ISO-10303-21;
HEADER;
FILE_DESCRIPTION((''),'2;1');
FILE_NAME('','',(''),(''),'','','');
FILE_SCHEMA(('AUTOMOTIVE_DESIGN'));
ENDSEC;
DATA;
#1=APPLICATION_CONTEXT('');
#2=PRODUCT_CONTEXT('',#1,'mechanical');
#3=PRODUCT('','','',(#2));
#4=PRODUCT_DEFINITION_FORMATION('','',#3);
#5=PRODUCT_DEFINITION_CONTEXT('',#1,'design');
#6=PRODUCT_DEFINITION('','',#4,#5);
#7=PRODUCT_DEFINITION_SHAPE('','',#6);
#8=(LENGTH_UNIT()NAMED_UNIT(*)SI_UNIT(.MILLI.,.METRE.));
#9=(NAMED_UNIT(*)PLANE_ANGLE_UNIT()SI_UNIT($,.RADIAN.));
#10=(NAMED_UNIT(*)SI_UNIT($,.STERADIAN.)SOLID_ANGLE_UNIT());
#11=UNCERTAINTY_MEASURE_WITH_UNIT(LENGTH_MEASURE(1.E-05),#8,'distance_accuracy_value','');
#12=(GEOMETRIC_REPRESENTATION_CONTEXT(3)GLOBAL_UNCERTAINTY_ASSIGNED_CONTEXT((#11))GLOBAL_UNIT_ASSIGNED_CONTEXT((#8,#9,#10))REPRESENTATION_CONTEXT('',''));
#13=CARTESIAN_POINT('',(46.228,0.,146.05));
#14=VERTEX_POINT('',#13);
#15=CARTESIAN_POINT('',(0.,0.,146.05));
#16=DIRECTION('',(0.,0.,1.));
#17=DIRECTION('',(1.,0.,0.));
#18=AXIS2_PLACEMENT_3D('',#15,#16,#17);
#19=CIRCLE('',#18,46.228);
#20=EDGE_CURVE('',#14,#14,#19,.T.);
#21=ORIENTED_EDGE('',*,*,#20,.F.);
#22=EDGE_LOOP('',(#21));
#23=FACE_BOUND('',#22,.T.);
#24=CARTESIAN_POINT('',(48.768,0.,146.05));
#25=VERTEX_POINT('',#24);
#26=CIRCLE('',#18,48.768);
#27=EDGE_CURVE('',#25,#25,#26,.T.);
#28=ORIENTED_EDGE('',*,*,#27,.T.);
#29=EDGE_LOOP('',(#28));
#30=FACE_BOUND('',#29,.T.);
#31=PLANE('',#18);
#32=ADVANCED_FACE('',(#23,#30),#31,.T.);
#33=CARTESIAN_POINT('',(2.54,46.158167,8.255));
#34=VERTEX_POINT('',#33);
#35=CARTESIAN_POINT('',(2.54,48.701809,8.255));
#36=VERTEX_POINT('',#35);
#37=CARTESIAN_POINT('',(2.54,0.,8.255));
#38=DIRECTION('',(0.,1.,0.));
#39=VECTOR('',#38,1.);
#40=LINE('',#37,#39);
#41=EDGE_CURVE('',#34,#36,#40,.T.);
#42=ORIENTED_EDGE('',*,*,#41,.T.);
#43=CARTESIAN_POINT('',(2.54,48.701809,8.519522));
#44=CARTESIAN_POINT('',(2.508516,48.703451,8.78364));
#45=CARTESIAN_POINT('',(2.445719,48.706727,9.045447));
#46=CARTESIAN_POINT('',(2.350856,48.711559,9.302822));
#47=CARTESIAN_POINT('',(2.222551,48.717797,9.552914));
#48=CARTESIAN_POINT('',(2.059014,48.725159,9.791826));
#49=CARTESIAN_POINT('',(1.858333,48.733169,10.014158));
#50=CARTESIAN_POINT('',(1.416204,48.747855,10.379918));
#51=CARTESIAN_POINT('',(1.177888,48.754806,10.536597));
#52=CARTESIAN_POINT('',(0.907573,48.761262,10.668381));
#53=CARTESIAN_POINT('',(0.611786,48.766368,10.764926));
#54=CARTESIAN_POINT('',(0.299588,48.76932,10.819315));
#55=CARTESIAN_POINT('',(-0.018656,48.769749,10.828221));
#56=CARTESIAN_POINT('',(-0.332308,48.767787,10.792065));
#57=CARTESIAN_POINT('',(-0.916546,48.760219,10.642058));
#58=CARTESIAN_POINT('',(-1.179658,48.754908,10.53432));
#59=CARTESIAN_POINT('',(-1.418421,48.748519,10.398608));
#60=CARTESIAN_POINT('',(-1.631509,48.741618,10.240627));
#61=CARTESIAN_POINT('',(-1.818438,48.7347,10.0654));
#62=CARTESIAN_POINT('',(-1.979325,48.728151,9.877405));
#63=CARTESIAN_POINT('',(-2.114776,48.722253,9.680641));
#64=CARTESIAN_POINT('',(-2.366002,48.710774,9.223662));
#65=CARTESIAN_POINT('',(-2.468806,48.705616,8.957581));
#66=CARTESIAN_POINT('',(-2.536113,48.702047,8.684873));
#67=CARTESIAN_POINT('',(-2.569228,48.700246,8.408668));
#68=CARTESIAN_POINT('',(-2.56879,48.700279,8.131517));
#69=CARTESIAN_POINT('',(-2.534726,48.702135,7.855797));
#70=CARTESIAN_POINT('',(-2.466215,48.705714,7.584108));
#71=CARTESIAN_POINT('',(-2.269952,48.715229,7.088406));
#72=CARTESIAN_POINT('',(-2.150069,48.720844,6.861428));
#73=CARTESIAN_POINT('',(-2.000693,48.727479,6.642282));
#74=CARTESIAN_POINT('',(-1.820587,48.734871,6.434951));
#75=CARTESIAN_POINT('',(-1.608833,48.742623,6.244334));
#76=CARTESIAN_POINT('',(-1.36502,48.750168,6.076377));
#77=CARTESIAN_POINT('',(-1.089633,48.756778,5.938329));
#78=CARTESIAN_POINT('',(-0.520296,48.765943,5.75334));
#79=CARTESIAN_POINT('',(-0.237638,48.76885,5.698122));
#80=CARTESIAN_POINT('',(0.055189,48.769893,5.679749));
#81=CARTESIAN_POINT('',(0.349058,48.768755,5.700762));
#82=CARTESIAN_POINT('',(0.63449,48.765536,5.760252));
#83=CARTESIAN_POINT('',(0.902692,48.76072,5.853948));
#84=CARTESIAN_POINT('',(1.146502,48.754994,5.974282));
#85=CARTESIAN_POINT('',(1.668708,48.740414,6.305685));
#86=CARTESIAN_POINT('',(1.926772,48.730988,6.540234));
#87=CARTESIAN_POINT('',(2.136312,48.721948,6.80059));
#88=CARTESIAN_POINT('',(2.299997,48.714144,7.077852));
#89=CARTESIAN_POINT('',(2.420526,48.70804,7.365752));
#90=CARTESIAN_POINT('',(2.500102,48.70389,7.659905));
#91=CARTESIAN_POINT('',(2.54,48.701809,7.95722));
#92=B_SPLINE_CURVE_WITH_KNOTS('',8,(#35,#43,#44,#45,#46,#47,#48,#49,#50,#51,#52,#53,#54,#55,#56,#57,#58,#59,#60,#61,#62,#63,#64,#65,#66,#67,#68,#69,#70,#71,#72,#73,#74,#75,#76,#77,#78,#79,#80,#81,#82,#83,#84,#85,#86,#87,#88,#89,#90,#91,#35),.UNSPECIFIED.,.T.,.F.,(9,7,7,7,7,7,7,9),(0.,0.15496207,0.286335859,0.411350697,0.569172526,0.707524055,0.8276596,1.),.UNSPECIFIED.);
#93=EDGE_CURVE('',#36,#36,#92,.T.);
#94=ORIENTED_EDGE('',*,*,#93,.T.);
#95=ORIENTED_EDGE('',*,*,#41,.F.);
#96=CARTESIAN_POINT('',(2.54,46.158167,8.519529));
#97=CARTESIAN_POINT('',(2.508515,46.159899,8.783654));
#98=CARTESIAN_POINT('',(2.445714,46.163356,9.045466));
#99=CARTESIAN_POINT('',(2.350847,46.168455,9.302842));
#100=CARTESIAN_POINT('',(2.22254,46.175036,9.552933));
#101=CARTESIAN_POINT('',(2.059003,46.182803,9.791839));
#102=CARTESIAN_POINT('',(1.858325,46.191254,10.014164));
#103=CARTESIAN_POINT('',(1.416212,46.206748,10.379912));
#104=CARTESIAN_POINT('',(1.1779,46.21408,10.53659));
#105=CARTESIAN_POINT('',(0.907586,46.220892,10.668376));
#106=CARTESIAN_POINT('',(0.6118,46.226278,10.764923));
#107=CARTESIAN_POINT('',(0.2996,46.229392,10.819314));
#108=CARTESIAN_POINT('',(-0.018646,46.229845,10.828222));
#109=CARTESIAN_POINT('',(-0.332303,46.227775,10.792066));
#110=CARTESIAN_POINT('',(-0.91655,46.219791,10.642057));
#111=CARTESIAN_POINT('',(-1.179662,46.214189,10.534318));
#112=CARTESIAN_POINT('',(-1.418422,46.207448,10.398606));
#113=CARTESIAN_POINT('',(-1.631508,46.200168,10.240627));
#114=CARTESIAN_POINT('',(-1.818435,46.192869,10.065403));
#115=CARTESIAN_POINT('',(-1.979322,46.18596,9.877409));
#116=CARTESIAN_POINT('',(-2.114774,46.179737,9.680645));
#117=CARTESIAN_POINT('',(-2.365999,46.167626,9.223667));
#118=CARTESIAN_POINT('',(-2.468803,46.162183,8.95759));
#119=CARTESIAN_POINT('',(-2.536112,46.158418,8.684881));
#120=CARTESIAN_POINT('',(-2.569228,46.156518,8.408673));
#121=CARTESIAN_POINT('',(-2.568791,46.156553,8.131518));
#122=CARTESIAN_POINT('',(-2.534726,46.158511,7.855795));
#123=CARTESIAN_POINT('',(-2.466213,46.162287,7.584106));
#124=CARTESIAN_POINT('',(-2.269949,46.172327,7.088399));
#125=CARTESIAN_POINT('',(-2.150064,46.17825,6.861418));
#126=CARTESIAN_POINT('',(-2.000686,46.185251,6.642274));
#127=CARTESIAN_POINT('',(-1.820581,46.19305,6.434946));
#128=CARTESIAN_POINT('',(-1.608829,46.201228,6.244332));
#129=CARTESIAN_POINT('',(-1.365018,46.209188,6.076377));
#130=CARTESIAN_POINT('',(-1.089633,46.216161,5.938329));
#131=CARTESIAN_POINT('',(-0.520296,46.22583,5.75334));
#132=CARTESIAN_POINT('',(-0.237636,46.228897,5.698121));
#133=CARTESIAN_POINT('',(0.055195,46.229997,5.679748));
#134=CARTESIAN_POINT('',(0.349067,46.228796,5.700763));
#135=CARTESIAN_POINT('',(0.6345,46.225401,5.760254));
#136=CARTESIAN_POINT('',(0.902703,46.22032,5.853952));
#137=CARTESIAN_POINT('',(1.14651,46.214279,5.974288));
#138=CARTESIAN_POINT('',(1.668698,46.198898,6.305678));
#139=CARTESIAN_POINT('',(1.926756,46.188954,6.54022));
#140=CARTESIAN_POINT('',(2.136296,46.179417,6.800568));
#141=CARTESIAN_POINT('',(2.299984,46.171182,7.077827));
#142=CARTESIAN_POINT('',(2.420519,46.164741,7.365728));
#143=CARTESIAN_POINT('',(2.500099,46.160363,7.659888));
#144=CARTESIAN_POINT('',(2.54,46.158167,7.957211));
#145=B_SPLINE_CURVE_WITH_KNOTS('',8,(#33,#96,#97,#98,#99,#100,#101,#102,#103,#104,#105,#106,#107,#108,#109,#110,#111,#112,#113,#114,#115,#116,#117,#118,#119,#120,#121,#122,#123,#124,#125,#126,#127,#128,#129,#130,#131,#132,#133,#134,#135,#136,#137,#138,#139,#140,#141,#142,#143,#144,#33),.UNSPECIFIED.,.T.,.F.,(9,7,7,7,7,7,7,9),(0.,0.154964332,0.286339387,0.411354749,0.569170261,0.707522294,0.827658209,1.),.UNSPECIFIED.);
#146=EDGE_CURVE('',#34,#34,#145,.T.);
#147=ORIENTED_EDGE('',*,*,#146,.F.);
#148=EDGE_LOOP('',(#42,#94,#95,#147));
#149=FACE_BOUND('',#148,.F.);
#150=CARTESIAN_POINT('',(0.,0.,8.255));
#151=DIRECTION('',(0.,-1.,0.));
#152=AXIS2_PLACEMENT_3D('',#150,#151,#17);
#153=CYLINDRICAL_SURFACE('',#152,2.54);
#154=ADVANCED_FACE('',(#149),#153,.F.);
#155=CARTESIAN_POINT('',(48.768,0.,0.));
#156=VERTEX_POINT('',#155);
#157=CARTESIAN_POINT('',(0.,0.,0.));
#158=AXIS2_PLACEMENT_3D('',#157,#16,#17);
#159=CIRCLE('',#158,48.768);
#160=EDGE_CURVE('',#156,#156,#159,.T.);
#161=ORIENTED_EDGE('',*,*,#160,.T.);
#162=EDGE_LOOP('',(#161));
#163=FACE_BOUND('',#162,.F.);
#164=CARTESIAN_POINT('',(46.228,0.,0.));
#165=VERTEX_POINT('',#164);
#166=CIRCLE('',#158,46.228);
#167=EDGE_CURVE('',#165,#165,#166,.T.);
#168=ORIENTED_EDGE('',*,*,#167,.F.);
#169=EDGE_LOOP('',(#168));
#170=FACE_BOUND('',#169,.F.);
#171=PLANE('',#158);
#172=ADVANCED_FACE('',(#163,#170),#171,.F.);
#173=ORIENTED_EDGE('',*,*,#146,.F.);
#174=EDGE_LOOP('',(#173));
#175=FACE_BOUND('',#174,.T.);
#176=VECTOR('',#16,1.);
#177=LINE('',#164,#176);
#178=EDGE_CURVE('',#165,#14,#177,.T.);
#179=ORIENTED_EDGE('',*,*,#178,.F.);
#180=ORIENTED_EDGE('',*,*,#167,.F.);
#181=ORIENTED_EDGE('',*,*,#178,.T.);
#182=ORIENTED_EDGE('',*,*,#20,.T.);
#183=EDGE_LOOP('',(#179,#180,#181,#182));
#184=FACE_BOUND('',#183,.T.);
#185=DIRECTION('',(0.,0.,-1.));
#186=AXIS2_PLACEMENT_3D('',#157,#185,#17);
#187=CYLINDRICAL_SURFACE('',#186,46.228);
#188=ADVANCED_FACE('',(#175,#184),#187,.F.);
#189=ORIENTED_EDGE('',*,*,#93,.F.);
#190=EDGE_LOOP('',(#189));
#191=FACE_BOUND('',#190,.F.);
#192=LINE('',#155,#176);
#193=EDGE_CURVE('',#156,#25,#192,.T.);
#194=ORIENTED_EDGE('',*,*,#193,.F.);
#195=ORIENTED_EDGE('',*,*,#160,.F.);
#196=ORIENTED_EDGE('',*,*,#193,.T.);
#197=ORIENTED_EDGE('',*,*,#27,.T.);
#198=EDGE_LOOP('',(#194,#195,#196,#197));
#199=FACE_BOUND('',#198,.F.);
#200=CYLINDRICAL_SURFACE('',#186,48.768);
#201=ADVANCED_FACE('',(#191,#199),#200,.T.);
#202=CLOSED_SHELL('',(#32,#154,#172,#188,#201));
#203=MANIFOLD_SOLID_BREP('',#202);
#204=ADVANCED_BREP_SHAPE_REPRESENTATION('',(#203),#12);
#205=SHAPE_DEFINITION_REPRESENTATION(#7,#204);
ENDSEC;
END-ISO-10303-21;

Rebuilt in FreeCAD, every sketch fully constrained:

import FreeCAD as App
import Part
import Sketcher
from FreeCAD import Vector
Q = App.Units.Quantity

doc = App.newDocument("Part")
body = doc.addObject("PartDesign::Body", "Body")

# Sketch on XY plane
sketch1 = body.newObject("Sketcher::SketchObject", "Sketch")
sketch1.AttachmentSupport = (doc.getObject("XY_Plane"), [""])
sketch1.MapMode = "FlatFace"
sketch1.addGeometry([
    Part.Circle(Vector(0, 0, 0), Vector(0, 0, 1), 49),
    Part.Circle(Vector(0, 0, 0), Vector(0, 0, 1), 46),
], False)
sketch1.addConstraint([
    Sketcher.Constraint("Coincident", 0, 3, -1, 1),
    Sketcher.Constraint("Coincident", 1, 3, -1, 1),
    Sketcher.Constraint("Diameter", 0, Q("3.84 in")),
    Sketcher.Constraint("Diameter", 1, Q("3.64 in")),
])
pad1 = body.newObject("PartDesign::Pad", "Pad")
pad1.Profile = sketch1
pad1.Length = Q("5.75 in")

# Sketch on XZ plane
sketch2 = body.newObject("Sketcher::SketchObject", "Sketch001")
sketch2.AttachmentSupport = (doc.getObject("XZ_Plane"), [""])
sketch2.MapMode = "FlatFace"
sketch2.addGeometry(Part.Circle(Vector(0, 8.3, 0), Vector(0, 0, 1), 2.5), False)
sketch2.addConstraint([
    Sketcher.Constraint("PointOnObject", 0, 3, -2),
    Sketcher.Constraint("Diameter", 0, Q("0.2 in")),
    Sketcher.Constraint("DistanceY", -1, 1, 0, 3, Q("0.325 in")),
])
pocket1 = body.newObject("PartDesign::Pocket", "Pocket")
pocket1.Profile = sketch2
pocket1.Type = "ThroughAll"

doc.recompute()
